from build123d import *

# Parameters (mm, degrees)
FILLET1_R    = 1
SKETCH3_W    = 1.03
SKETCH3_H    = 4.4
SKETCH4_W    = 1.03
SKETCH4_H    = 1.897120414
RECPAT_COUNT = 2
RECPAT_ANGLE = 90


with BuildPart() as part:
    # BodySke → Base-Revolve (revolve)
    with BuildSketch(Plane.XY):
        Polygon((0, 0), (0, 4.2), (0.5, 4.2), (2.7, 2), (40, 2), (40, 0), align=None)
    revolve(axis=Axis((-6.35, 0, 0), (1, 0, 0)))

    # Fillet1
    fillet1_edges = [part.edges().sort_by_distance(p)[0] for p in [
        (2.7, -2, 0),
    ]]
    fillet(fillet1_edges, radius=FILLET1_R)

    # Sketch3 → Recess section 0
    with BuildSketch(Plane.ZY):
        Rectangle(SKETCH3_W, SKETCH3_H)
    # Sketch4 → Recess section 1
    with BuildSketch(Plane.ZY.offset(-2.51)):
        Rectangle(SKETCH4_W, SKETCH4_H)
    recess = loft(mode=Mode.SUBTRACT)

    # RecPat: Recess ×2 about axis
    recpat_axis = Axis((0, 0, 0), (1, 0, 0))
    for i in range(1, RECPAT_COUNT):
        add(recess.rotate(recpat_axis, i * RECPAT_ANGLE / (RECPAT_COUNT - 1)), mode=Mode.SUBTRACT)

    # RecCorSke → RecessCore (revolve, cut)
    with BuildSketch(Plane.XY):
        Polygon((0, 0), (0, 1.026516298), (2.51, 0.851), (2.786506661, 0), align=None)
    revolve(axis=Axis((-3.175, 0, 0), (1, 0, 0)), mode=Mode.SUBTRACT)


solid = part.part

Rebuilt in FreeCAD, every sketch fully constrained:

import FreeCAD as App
import Part
import Sketcher
from FreeCAD import Vector
Q = App.Units.Quantity


def edges_at(feature, points):
    """Names of the edges that pass closest to the given points."""
    edges = feature.Shape.Edges
    near = lambda p: min(range(len(edges)), key=lambda i: edges[i].distToShape(Part.Vertex(*p))[0])
    return sorted({f"Edge{near(p) + 1}" for p in points})

doc = App.newDocument("Part")
params = doc.addObject("Spreadsheet::Sheet", "Params")
for row, (alias, value) in enumerate([
    ("sketch1_width", "40 mm"),
    ("sketch1_height", "2 mm"),
    ("sketch1_width2", "37.3 mm"),
    ("sketch1_width3", "0.5 mm"),
    ("revolution_angle", "360 deg"),
    ("fillet_radius", "1 mm"),
    ("sketch2_width", "4.4 mm"),
    ("sketch2_height", "1.03 mm"),
    ("sketch3_height", "1.03 mm"),
    ("groove_angle", "360 deg"),
], start=1):
    params.set(f"A{row}", alias)
    params.set(f"B{row}", "=" + value)
    params.setAlias(f"B{row}", alias)

body = doc.addObject("PartDesign::Body", "Body")

sketch1 = body.newObject("Sketcher::SketchObject", "Sketch")
sketch1.AttachmentSupport = (doc.getObject("XY_Plane"), [""])
sketch1.MapMode = "FlatFace"
sketch1.addGeometry([
    Part.LineSegment(Vector(0, 4.2, 0), Vector(0, 0, 0)),
    Part.LineSegment(Vector(0, 0, 0), Vector(40, 0, 0)),
    Part.LineSegment(Vector(40, 0, 0), Vector(40, 2, 0)),
    Part.LineSegment(Vector(40, 2, 0), Vector(2.7, 2, 0)),
    Part.LineSegment(Vector(2.7, 2, 0), Vector(0.5, 4.2, 0)),
    Part.LineSegment(Vector(0.5, 4.2, 0), Vector(0, 4.2, 0)),
], False)
sketch1.addConstraint([
    Sketcher.Constraint("Coincident", 0, 2, 1, 1),
    Sketcher.Constraint("Coincident", 1, 2, 2, 1),
    Sketcher.Constraint("Coincident", 2, 2, 3, 1),
    Sketcher.Constraint("Coincident", 3, 2, 4, 1),
    Sketcher.Constraint("Coincident", 4, 2, 5, 1),
    Sketcher.Constraint("Coincident", 5, 2, 0, 1),
    Sketcher.Constraint("Vertical", 0),
    Sketcher.Constraint("Horizontal", 1),
    Sketcher.Constraint("Vertical", 2),
    Sketcher.Constraint("Horizontal", 3),
    Sketcher.Constraint("Horizontal", 5),
    Sketcher.Constraint("Coincident", 0, 2, -1, 1),
    Sketcher.Constraint("DistanceX", 1, 1, 1, 2, 40.0),
    Sketcher.Constraint("DistanceY", 2, 1, 2, 2, 2.0),
    Sketcher.Constraint("Angle", 4, Q("135 deg")),
    Sketcher.Constraint("DistanceX", 3, 2, 3, 1, 37.3),
    Sketcher.Constraint("DistanceX", 5, 2, 5, 1, 0.5),
])
sketch1.setExpression("Constraints[12]", "Params.sketch1_width")
sketch1.setExpression("Constraints[13]", "Params.sketch1_height")
sketch1.setExpression("Constraints[15]", "Params.sketch1_width2")
sketch1.setExpression("Constraints[16]", "Params.sketch1_width3")
revolution = body.newObject("PartDesign::Revolution", "Revolution")
revolution.Profile = sketch1
revolution.ReferenceAxis = (sketch1, ["H_Axis"])
revolution.setExpression("Angle", "Params.revolution_angle")
doc.recompute()

fillet = body.newObject("PartDesign::Fillet", "Fillet")
fillet.Base = (revolution, edges_at(revolution, [(2.7, -2, 0)]))
fillet.setExpression("Radius", "Params.fillet_radius")

sketch2 = body.newObject("Sketcher::SketchObject", "Sketch001")
sketch2.AttachmentSupport = (doc.getObject("YZ_Plane"), [""])
sketch2.MapMode = "FlatFace"
sketch2.addGeometry([
    Part.LineSegment(Vector(2.2, -0.5, 0), Vector(-2.2, -0.5, 0)),
    Part.LineSegment(Vector(-2.2, -0.5, 0), Vector(-2.2, 0.5, 0)),
    Part.LineSegment(Vector(-2.2, 0.5, 0), Vector(2.2, 0.5, 0)),
    Part.LineSegment(Vector(2.2, 0.5, 0), Vector(2.2, -0.5, 0)),
], False)
sketch2.addConstraint([
    Sketcher.Constraint("Coincident", 0, 2, 1, 1),
    Sketcher.Constraint("Coincident", 1, 2, 2, 1),
    Sketcher.Constraint("Coincident", 2, 2, 3, 1),
    Sketcher.Constraint("Coincident", 3, 2, 0, 1),
    Sketcher.Constraint("Horizontal", 0),
    Sketcher.Constraint("Vertical", 1),
    Sketcher.Constraint("Horizontal", 2),
    Sketcher.Constraint("Vertical", 3),
    Sketcher.Constraint("Symmetric", 0, 2, 2, 2, -1, 1),
    Sketcher.Constraint("DistanceX", 0, 2, 0, 1, 4.4),
    Sketcher.Constraint("DistanceY", 1, 1, 1, 2, 1.03),
])
sketch2.setExpression("Constraints[9]", "Params.sketch2_width")
sketch2.setExpression("Constraints[10]", "Params.sketch2_height")

sketch3 = body.newObject("Sketcher::SketchObject", "Sketch002")
sketch3.AttachmentSupport = (doc.getObject("YZ_Plane"), [""])
sketch3.MapMode = "FlatFace"
sketch3.AttachmentOffset = App.Placement(Vector(0, 0, 2.51), App.Rotation())
sketch3.addGeometry([
    Part.LineSegment(Vector(0.9, -0.5, 0), Vector(-0.9, -0.5, 0)),
    Part.LineSegment(Vector(-0.9, -0.5, 0), Vector(-0.9, 0.5, 0)),
    Part.LineSegment(Vector(-0.9, 0.5, 0), Vector(0.9, 0.5, 0)),
    Part.LineSegment(Vector(0.9, 0.5, 0), Vector(0.9, -0.5, 0)),
], False)
sketch3.addConstraint([
    Sketcher.Constraint("Coincident", 0, 2, 1, 1),
    Sketcher.Constraint("Coincident", 1, 2, 2, 1),
    Sketcher.Constraint("Coincident", 2, 2, 3, 1),
    Sketcher.Constraint("Coincident", 3, 2, 0, 1),
    Sketcher.Constraint("Horizontal", 0),
    Sketcher.Constraint("Vertical", 1),
    Sketcher.Constraint("Horizontal", 2),
    Sketcher.Constraint("Vertical", 3),
    Sketcher.Constraint("Symmetric", 0, 2, 2, 2, -1, 1),
    Sketcher.Constraint("DistanceY", 1, 1, 1, 2, 1.03),
    Sketcher.Constraint("DistanceX", 0, 2, 0, 1, 1.89712),
])
sketch3.setExpression("Constraints[9]", "Params.sketch3_height")

subtractiveloft = body.newObject("PartDesign::SubtractiveLoft", "SubtractiveLoft")
subtractiveloft.Profile = sketch2
subtractiveloft.Sections = [sketch3]
doc.recompute()

polarpattern = body.newObject("PartDesign::PolarPattern", "PolarPattern")
polarpattern.Originals = [subtractiveloft]
polarpattern.Axis = (doc.getObject("X_Axis"), [""])
polarpattern.Angle = 90
polarpattern.Occurrences = 2
body.Tip = polarpattern

sketch4 = body.newObject("Sketcher::SketchObject", "Sketch003")
sketch4.AttachmentSupport = (doc.getObject("XY_Plane"), [""])
sketch4.MapMode = "FlatFace"
sketch4.addGeometry([
    Part.LineSegment(Vector(0, 1, 0), Vector(0, 0, 0)),
    Part.LineSegment(Vector(0, 0, 0), Vector(2.8, 0, 0)),
    Part.LineSegment(Vector(2.8, 0, 0), Vector(2.5, 0.9, 0)),
    Part.LineSegment(Vector(2.5, 0.9, 0), Vector(0, 1, 0)),
], False)
sketch4.addConstraint([
    Sketcher.Constraint("Coincident", 0, 2, 1, 1),
    Sketcher.Constraint("Coincident", 1, 2, 2, 1),
    Sketcher.Constraint("Coincident", 2, 2, 3, 1),
    Sketcher.Constraint("Coincident", 3, 2, 0, 1),
    Sketcher.Constraint("Vertical", 0),
    Sketcher.Constraint("Horizontal", 1),
    Sketcher.Constraint("Coincident", 0, 2, -1, 1),
    Sketcher.Constraint("Angle", 2, Q("108 deg")),
    Sketcher.Constraint("Angle", 3, Q("176 deg")),
    Sketcher.Constraint("DistanceX", -1, 1, 2, 2, 2.51),
    Sketcher.Constraint("DistanceY", -1, 1, 2, 2, 0.851),
])
groove = body.newObject("PartDesign::Groove", "Groove")
groove.Profile = sketch4
groove.ReferenceAxis = (sketch4, ["H_Axis"])
groove.setExpression("Angle", "Params.groove_angle")

doc.recompute()
